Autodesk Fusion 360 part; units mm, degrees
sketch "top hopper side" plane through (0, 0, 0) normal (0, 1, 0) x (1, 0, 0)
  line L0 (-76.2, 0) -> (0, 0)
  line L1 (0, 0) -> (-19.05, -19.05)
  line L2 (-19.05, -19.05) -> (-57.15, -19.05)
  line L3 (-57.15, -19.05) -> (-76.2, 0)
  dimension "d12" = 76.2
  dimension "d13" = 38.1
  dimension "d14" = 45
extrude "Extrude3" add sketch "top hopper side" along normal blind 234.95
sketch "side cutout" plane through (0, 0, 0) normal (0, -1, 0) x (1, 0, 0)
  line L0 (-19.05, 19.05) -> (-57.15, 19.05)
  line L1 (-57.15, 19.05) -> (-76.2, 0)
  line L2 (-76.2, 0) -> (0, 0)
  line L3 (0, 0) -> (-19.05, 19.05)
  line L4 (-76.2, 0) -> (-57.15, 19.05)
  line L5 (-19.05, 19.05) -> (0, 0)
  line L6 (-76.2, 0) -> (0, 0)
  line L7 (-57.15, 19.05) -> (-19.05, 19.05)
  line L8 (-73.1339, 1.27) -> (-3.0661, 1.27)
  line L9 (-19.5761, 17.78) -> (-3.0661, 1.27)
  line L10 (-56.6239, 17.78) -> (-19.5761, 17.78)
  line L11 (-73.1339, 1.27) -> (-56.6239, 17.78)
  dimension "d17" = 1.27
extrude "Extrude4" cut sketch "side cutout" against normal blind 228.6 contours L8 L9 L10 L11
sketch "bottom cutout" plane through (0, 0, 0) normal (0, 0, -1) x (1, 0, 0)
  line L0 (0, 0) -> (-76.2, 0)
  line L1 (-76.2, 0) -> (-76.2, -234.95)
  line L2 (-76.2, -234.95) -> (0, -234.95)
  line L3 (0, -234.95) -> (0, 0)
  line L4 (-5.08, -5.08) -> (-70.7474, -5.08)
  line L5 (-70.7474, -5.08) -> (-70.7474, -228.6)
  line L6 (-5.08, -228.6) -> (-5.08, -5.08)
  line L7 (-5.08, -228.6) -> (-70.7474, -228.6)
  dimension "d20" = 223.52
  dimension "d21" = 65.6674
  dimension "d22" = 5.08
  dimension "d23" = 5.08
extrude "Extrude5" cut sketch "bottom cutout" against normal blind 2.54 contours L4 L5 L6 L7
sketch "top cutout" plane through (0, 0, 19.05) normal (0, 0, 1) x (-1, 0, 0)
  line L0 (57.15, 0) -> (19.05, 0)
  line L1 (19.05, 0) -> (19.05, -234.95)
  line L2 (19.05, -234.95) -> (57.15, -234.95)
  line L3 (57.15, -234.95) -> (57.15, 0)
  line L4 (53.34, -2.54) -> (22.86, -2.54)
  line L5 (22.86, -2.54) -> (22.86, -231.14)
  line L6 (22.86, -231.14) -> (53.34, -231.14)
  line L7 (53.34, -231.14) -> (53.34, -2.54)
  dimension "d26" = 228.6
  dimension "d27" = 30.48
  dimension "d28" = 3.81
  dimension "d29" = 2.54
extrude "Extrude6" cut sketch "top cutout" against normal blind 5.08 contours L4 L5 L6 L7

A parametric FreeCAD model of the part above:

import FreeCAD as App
import Part
import Sketcher
from FreeCAD import Vector
Q = App.Units.Quantity

doc = App.newDocument("Part")
body = doc.addObject("PartDesign::Body", "Body")

sketch1 = body.newObject("Sketcher::SketchObject", "Sketch")
sketch1.AttachmentSupport = (doc.getObject("XZ_Plane"), [""])
sketch1.MapMode = "FlatFace"
sketch1.addGeometry([
    Part.LineSegment(Vector(0, 0, 0), Vector(-76, 0, 0)),
    Part.LineSegment(Vector(-76, 0, 0), Vector(-57, 19, 0)),
    Part.LineSegment(Vector(-57, 19, 0), Vector(-19, 19, 0)),
    Part.LineSegment(Vector(-19, 19, 0), Vector(0, 0, 0)),
], False)
sketch1.addConstraint([
    Sketcher.Constraint("Coincident", 0, 2, 1, 1),
    Sketcher.Constraint("Coincident", 1, 2, 2, 1),
    Sketcher.Constraint("Coincident", 2, 2, 3, 1),
    Sketcher.Constraint("Coincident", 3, 2, 0, 1),
    Sketcher.Constraint("Horizontal", 0),
    Sketcher.Constraint("Horizontal", 2),
    Sketcher.Constraint("Coincident", 3, 2, -1, 1),
    Sketcher.Constraint("Perpendicular", 1, 3),
    Sketcher.Constraint("Equal", 1, 3),
    Sketcher.Constraint("DistanceX", 0, 2, 0, 1, Q("3 in")),
    Sketcher.Constraint("DistanceX", 2, 1, 2, 2, Q("1.5 in")),
])
pad1 = body.newObject("PartDesign::Pad", "Pad")
pad1.Profile = sketch1
pad1.Length = Q("9.25 in")
pad1.Reversed = True

sketch2 = body.newObject("Sketcher::SketchObject", "Sketch001")
sketch2.AttachmentSupport = (doc.getObject("XZ_Plane"), [""])
sketch2.MapMode = "FlatFace"
sketch2.addGeometry([
    Part.LineSegment(Vector(-57, 18, 0), Vector(-73, 1, 0)),
    Part.LineSegment(Vector(-73, 1, 0), Vector(-3, 1, 0)),
    Part.LineSegment(Vector(-3, 1, 0), Vector(-20, 18, 0)),
    Part.LineSegment(Vector(-20, 18, 0), Vector(-57, 18, 0)),
], False)
sketch2.addConstraint([
    Sketcher.Constraint("Coincident", 0, 2, 1, 1),
    Sketcher.Constraint("Coincident", 1, 2, 2, 1),
    Sketcher.Constraint("Coincident", 2, 2, 3, 1),
    Sketcher.Constraint("Coincident", 3, 2, 0, 1),
    Sketcher.Constraint("Horizontal", 1),
    Sketcher.Constraint("Horizontal", 3),
    Sketcher.Constraint("Perpendicular", 0, 2),
    Sketcher.Constraint("Equal", 0, 2),
    Sketcher.Constraint("DistanceY", -1, 1, 0, 2, Q("0.05 in")),
    Sketcher.Constraint("DistanceY", -1, 1, 2, 2, Q("0.7 in")),
    Sketcher.Constraint("DistanceX", 1, 1, 1, 2, Q("70.0678 mm")),
    Sketcher.Constraint("DistanceX", 0, 2, -1, 1, Q("2.8792913 in")),
])
pocket1 = body.newObject("PartDesign::Pocket", "Pocket")
pocket1.Profile = sketch2
pocket1.Length = Q("9 in")

sketch3 = body.newObject("Sketcher::SketchObject", "Sketch002")
sketch3.AttachmentSupport = (doc.getObject("XY_Plane"), [""])
sketch3.MapMode = "FlatFace"
sketch3.addGeometry([
    Part.LineSegment(Vector(-5, 229, 0), Vector(-5, 5, 0)),
    Part.LineSegment(Vector(-5, 5, 0), Vector(-71, 5, 0)),
    Part.LineSegment(Vector(-71, 5, 0), Vector(-71, 229, 0)),
    Part.LineSegment(Vector(-71, 229, 0), Vector(-5, 229, 0)),
], False)
sketch3.addConstraint([
    Sketcher.Constraint("Coincident", 0, 2, 1, 1),
    Sketcher.Constraint("Coincident", 1, 2, 2, 1),
    Sketcher.Constraint("Coincident", 2, 2, 3, 1),
    Sketcher.Constraint("Coincident", 3, 2, 0, 1),
    Sketcher.Constraint("Vertical", 0),
    Sketcher.Constraint("Horizontal", 1),
    Sketcher.Constraint("Vertical", 2),
    Sketcher.Constraint("Horizontal", 3),
    Sketcher.Constraint("DistanceY", 0, 2, 0, 1, Q("8.8 in")),
    Sketcher.Constraint("DistanceX", 0, 2, -1, 1, Q("0.2 in")),
    Sketcher.Constraint("DistanceY", -1, 1, 0, 2, Q("0.2 in")),
    Sketcher.Constraint("DistanceX", 1, 2, 1, 1, Q("65.6674 mm")),
])
pocket2 = body.newObject("PartDesign::Pocket", "Pocket001")
pocket2.Profile = sketch3
pocket2.Length = Q("0.1 in")
pocket2.Reversed = True

sketch4 = body.newObject("Sketcher::SketchObject", "Sketch003")
sketch4.AttachmentSupport = (doc.getObject("XY_Plane"), [""])
sketch4.MapMode = "FlatFace"
sketch4.AttachmentOffset = App.Placement(Vector(0, 0, 0.75 * 25.4), App.Rotation())
sketch4.addGeometry([
    Part.LineSegment(Vector(-53, 231, 0), Vector(-53, 3, 0)),
    Part.LineSegment(Vector(-53, 3, 0), Vector(-23, 3, 0)),
    Part.LineSegment(Vector(-23, 3, 0), Vector(-23, 231, 0)),
    Part.LineSegment(Vector(-23, 231, 0), Vector(-53, 231, 0)),
], False)
sketch4.addConstraint([
    Sketcher.Constraint("Coincident", 0, 2, 1, 1),
    Sketcher.Constraint("Coincident", 1, 2, 2, 1),
    Sketcher.Constraint("Coincident", 2, 2, 3, 1),
    Sketcher.Constraint("Coincident", 3, 2, 0, 1),
    Sketcher.Constraint("Vertical", 0),
    Sketcher.Constraint("Horizontal", 1),
    Sketcher.Constraint("Vertical", 2),
    Sketcher.Constraint("Horizontal", 3),
    Sketcher.Constraint("DistanceY", 0, 2, 0, 1, Q("9 in")),
    Sketcher.Constraint("DistanceX", 1, 1, 1, 2, Q("1.2 in")),
    Sketcher.Constraint("DistanceY", -1, 1, 0, 2, Q("0.1 in")),
    Sketcher.Constraint("DistanceX", 0, 2, -1, 1, Q("2.1 in")),
])
pocket3 = body.newObject("PartDesign::Pocket", "Pocket002")
pocket3.Profile = sketch4
pocket3.Length = Q("0.2 in")

doc.recompute()
